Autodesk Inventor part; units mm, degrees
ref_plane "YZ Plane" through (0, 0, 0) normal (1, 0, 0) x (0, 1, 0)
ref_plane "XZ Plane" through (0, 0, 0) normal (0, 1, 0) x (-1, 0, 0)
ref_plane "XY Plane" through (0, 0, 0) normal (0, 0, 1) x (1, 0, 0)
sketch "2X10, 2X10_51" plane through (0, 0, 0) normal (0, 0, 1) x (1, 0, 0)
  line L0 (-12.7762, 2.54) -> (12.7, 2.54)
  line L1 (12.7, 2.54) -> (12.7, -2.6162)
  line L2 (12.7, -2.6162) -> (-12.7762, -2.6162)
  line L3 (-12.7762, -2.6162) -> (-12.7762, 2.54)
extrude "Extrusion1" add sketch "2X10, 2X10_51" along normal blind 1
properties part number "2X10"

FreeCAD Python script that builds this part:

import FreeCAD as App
import Part
import Sketcher
Q = App.Units.Quantity


def add_polygon(sketch, points):
    """Adds a closed chain of lines whose ends are joined by coincident constraints."""
    first, n = sketch.GeometryCount, len(points)
    for a, b in zip(points, points[1:] + points[:1]):
        sketch.addGeometry(Part.LineSegment(App.Vector(*a, 0), App.Vector(*b, 0)), False)
    for i in range(n):
        sketch.addConstraint(Sketcher.Constraint("Coincident", first + i, 2, first + (i + 1) % n, 1))

doc = App.newDocument("Part")
body = doc.addObject("PartDesign::Body", "Body")

sketch1 = doc.addObject("Sketcher::SketchObject", "Sketch")
body.addObject(sketch1)
sketch1.AttachmentSupport = (doc.XY_Plane, [""])
sketch1.MapMode = "FlatFace"
add_polygon(sketch1, [(13, 3), (-13, 3), (-13, -3), (13, -3)])
sketch1.addConstraint(Sketcher.Constraint("Horizontal", 0))
sketch1.addConstraint(Sketcher.Constraint("Vertical", 1))
sketch1.addConstraint(Sketcher.Constraint("Horizontal", 2))
sketch1.addConstraint(Sketcher.Constraint("Vertical", 3))
sketch1.addConstraint(Sketcher.Constraint("DistanceY", -1, 1, 0, 2, Q("0.1 in")))
sketch1.addConstraint(Sketcher.Constraint("DistanceX", -1, 1, 2, 2, Q("0.5 in")))
sketch1.addConstraint(Sketcher.Constraint("DistanceX", 0, 2, 0, 1, Q("1.003 in")))
sketch1.addConstraint(Sketcher.Constraint("DistanceY", 1, 2, 1, 1, Q("0.203 in")))
pad1 = doc.addObject("PartDesign::Pad", "Pad")
body.addObject(pad1)
pad1.Profile = sketch1
pad1.Length = 1

doc.recompute()
